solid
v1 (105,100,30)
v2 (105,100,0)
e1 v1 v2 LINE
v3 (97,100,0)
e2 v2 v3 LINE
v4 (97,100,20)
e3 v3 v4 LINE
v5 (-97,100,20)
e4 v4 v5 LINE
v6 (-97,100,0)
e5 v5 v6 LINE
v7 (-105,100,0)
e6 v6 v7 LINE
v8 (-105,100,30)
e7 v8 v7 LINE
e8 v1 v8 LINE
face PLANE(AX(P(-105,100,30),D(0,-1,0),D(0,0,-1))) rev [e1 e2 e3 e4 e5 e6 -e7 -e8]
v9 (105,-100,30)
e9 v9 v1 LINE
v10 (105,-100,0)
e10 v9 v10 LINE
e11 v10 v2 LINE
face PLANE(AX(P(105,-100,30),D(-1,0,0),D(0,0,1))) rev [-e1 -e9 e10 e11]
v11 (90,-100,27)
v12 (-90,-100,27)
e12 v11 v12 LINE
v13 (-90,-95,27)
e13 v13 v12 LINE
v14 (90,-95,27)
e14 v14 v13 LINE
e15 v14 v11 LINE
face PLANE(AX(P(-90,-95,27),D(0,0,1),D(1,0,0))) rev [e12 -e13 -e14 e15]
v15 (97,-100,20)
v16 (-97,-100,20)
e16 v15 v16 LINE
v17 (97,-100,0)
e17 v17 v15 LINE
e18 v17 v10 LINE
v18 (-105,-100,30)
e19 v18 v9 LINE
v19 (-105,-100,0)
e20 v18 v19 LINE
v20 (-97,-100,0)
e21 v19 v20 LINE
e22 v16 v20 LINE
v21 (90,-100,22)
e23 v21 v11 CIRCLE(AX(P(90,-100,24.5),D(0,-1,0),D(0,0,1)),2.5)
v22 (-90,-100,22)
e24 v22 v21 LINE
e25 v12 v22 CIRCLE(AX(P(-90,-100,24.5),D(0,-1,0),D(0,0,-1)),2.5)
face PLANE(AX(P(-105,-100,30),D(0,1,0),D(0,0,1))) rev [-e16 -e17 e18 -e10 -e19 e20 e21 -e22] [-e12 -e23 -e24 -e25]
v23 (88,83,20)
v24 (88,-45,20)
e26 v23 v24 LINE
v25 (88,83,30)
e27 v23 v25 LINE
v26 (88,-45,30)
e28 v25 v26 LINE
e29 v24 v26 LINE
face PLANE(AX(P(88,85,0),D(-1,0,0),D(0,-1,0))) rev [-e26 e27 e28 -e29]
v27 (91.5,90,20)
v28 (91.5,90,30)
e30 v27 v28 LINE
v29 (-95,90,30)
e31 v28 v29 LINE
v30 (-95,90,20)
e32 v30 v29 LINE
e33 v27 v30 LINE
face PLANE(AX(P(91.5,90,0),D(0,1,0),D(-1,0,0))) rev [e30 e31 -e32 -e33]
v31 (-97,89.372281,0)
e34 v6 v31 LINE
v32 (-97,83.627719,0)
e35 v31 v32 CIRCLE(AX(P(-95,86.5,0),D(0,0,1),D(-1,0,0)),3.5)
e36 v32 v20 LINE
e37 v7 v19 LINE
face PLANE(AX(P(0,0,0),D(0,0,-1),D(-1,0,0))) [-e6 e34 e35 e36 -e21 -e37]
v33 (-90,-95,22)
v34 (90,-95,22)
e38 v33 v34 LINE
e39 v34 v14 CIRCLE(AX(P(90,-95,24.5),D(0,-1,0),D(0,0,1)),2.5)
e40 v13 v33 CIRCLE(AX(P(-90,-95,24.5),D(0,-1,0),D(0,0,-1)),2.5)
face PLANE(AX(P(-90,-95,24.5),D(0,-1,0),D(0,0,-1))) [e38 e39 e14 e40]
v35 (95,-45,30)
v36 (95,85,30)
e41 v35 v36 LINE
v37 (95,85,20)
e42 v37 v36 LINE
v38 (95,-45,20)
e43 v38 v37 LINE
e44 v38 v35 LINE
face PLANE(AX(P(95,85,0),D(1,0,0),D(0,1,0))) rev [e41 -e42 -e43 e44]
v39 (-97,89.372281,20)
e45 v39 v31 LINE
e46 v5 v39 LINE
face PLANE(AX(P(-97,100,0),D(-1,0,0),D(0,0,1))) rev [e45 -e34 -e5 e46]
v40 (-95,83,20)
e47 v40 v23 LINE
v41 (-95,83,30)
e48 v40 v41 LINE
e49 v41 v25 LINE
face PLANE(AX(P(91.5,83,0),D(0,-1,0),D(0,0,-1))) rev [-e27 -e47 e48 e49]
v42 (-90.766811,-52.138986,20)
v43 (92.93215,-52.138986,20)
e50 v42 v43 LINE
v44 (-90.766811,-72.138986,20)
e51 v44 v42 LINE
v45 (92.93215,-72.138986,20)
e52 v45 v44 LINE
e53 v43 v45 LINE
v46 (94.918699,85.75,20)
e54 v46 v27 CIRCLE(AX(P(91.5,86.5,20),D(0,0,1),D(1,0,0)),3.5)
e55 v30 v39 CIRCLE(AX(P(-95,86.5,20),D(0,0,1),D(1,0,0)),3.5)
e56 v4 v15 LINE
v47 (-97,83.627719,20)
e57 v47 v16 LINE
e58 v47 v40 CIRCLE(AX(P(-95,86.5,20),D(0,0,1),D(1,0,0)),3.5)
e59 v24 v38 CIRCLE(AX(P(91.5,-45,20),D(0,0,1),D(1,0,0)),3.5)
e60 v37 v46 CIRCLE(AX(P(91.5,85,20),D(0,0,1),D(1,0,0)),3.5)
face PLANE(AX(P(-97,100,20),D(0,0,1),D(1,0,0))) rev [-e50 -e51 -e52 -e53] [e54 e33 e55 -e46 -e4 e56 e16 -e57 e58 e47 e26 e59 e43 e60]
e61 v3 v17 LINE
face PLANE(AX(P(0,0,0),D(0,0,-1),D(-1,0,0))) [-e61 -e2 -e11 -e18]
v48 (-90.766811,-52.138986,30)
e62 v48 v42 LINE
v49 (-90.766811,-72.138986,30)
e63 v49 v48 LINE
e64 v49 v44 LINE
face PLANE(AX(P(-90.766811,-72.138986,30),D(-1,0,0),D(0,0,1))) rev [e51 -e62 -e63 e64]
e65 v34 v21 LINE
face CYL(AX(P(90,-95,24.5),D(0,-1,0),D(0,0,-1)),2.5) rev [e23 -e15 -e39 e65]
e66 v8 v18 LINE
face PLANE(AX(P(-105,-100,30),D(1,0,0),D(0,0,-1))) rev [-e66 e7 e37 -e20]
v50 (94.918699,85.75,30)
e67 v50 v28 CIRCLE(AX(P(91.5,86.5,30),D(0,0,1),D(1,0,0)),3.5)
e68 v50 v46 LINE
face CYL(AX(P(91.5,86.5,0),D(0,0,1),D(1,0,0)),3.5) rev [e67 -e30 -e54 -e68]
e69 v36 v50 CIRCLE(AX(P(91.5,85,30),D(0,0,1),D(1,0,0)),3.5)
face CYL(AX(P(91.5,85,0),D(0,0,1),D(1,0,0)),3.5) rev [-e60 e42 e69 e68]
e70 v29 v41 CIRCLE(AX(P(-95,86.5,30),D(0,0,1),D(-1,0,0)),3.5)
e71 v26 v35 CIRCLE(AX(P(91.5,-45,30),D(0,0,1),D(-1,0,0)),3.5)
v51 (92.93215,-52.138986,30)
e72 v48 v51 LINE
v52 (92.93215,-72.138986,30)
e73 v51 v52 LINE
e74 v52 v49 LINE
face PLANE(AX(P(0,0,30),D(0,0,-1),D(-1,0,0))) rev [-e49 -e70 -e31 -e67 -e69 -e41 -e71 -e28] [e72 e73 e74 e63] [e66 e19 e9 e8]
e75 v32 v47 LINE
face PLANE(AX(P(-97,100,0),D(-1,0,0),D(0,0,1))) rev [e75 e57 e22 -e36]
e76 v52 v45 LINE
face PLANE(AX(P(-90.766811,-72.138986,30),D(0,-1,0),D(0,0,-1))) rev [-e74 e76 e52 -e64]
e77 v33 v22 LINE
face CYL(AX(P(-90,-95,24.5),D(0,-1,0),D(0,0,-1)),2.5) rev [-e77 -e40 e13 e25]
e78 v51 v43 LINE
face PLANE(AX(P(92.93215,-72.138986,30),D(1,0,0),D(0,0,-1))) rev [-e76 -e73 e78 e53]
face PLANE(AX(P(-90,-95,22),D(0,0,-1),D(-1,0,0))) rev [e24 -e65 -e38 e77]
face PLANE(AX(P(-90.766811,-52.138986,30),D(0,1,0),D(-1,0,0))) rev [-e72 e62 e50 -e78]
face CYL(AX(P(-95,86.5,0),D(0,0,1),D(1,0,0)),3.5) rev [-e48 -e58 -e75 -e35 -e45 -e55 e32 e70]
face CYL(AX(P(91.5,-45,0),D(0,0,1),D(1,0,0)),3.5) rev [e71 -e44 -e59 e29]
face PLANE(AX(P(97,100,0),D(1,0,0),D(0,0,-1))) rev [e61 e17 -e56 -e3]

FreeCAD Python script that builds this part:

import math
import FreeCAD as App
import Part
import Sketcher

doc = App.newDocument("Part")
params = doc.addObject("Spreadsheet::Sheet", "Params")
for row, (alias, value) in enumerate([
    ("sketch1_width", "210 mm"),
    ("sketch1_height", "200 mm"),
    ("pad1_length", "30 mm"),
    ("sketch2_width", "194 mm"),
    ("sketch2_height", "20 mm"),
    ("sketch3_radius", "3.5 mm"),
    ("sketch3_height", "130 mm"),
    ("sketch4_radius", "3.5 mm"),
    ("sketch4_width", "186.5 mm"),
    ("sketch5_height", "20 mm"),
    ("sketch6_radius", "2.5 mm"),
    ("sketch6_width", "180 mm"),
    ("pocket5_length", "5 mm"),
], start=1):
    params.set(f"A{row}", alias)
    params.set(f"B{row}", "=" + value)
    params.setAlias(f"B{row}", alias)

body = doc.addObject("PartDesign::Body", "Body")

# Sketch on XY plane
sketch1 = body.newObject("Sketcher::SketchObject", "Sketch")
sketch1.AttachmentSupport = (doc.getObject("XY_Plane"), [""])
sketch1.MapMode = "FlatFace"
sketch1.addGeometry(Part.LineSegment(App.Vector(-105, 100, 0), App.Vector(-105, -100, 0)), False)
sketch1.addGeometry(Part.LineSegment(App.Vector(-105, -100, 0), App.Vector(105, -100, 0)), False)
sketch1.addGeometry(Part.LineSegment(App.Vector(105, -100, 0), App.Vector(105, 100, 0)), False)
sketch1.addGeometry(Part.LineSegment(App.Vector(105, 100, 0), App.Vector(-105, 100, 0)), False)
sketch1.addConstraint(Sketcher.Constraint("Coincident", 0, 2, 1, 1))
sketch1.addConstraint(Sketcher.Constraint("Coincident", 1, 2, 2, 1))
sketch1.addConstraint(Sketcher.Constraint("Coincident", 2, 2, 3, 1))
sketch1.addConstraint(Sketcher.Constraint("Coincident", 3, 2, 0, 1))
sketch1.addConstraint(Sketcher.Constraint("Vertical", 0))
sketch1.addConstraint(Sketcher.Constraint("Horizontal", 1))
sketch1.addConstraint(Sketcher.Constraint("Vertical", 2))
sketch1.addConstraint(Sketcher.Constraint("Horizontal", 3))
sketch1.addConstraint(Sketcher.Constraint("Symmetric", 0, 2, 2, 2, -1, 1))
sketch1.addConstraint(Sketcher.Constraint("DistanceX", 1, 1, 1, 2, 210.0))
sketch1.addConstraint(Sketcher.Constraint("DistanceY", 0, 2, 0, 1, 200.0))
sketch1.setExpression("Constraints[9]", "Params.sketch1_width")
sketch1.setExpression("Constraints[10]", "Params.sketch1_height")
pad1 = body.newObject("PartDesign::Pad", "Pad")
pad1.Profile = sketch1
pad1.setExpression("Length", "Params.pad1_length")

# Sketch on XZ plane
sketch2 = body.newObject("Sketcher::SketchObject", "Sketch001")
sketch2.AttachmentSupport = (doc.getObject("XZ_Plane"), [""])
sketch2.MapMode = "FlatFace"
sketch2.AttachmentOffset = App.Placement(App.Vector(0, 0, 100), App.Rotation())
sketch2.addGeometry(Part.LineSegment(App.Vector(97, 0, 0), App.Vector(97, 20, 0)), False)
sketch2.addGeometry(Part.LineSegment(App.Vector(97, 20, 0), App.Vector(-97, 20, 0)), False)
sketch2.addGeometry(Part.LineSegment(App.Vector(-97, 20, 0), App.Vector(-97, 0, 0)), False)
sketch2.addGeometry(Part.LineSegment(App.Vector(-97, 0, 0), App.Vector(97, 0, 0)), False)
sketch2.addConstraint(Sketcher.Constraint("Coincident", 0, 2, 1, 1))
sketch2.addConstraint(Sketcher.Constraint("Coincident", 1, 2, 2, 1))
sketch2.addConstraint(Sketcher.Constraint("Coincident", 2, 2, 3, 1))
sketch2.addConstraint(Sketcher.Constraint("Coincident", 3, 2, 0, 1))
sketch2.addConstraint(Sketcher.Constraint("Vertical", 0))
sketch2.addConstraint(Sketcher.Constraint("Horizontal", 1))
sketch2.addConstraint(Sketcher.Constraint("Vertical", 2))
sketch2.addConstraint(Sketcher.Constraint("Horizontal", 3))
sketch2.addConstraint(Sketcher.Constraint("Symmetric", 2, 2, 3, 2, -1, 1))
sketch2.addConstraint(Sketcher.Constraint("DistanceX", 1, 2, 1, 1, 194.0))
sketch2.addConstraint(Sketcher.Constraint("DistanceY", 0, 1, 0, 2, 20.0))
sketch2.setExpression("Constraints[9]", "Params.sketch2_width")
sketch2.setExpression("Constraints[10]", "Params.sketch2_height")
pocket1 = body.newObject("PartDesign::Pocket", "Pocket")
pocket1.Profile = sketch2
pocket1.Type = "ThroughAll"

# Sketch on XY plane
sketch3 = body.newObject("Sketcher::SketchObject", "Sketch002")
sketch3.AttachmentSupport = (doc.getObject("XY_Plane"), [""])
sketch3.MapMode = "FlatFace"
sketch3.AttachmentOffset = App.Placement(App.Vector(0, 0, 30), App.Rotation())
sketch3.addGeometry(Part.LineSegment(App.Vector(88, 85, 0), App.Vector(88, -45, 0)), False)
sketch3.addGeometry(Part.ArcOfCircle(Part.Circle(App.Vector(91.5, -45, 0), App.Vector(0, 0, 1), 3.5), math.radians(180), math.radians(360)), False)
sketch3.addGeometry(Part.LineSegment(App.Vector(95, -45, 0), App.Vector(95, 85, 0)), False)
sketch3.addGeometry(Part.ArcOfCircle(Part.Circle(App.Vector(91.5, 85, 0), App.Vector(0, 0, 1), 3.5), math.radians(0), math.radians(180)), False)
sketch3.addConstraint(Sketcher.Constraint("Tangent", 0, 2, 1, 1))
sketch3.addConstraint(Sketcher.Constraint("Tangent", 1, 2, 2, 1))
sketch3.addConstraint(Sketcher.Constraint("Tangent", 2, 2, 3, 1))
sketch3.addConstraint(Sketcher.Constraint("Tangent", 3, 2, 0, 1))
sketch3.addConstraint(Sketcher.Constraint("Vertical", 0))
sketch3.addConstraint(Sketcher.Constraint("Vertical", 2))
sketch3.addConstraint(Sketcher.Constraint("Radius", 1, 3.5))
sketch3.addConstraint(Sketcher.Constraint("DistanceY", 0, 2, 0, 1, 130.0))
sketch3.addConstraint(Sketcher.Constraint("DistanceY", 1, 3, -1, 1, 45.0))
sketch3.addConstraint(Sketcher.Constraint("DistanceX", -1, 1, 0, 2, 88.0))
sketch3.setExpression("Constraints[6]", "Params.sketch3_radius")
sketch3.setExpression("Constraints[7]", "Params.sketch3_height")
pocket2 = body.newObject("PartDesign::Pocket", "Pocket001")
pocket2.Profile = sketch3
pocket2.Type = "ThroughAll"

# Sketch on XY plane
sketch4 = body.newObject("Sketcher::SketchObject", "Sketch003")
sketch4.AttachmentSupport = (doc.getObject("XY_Plane"), [""])
sketch4.MapMode = "FlatFace"
sketch4.AttachmentOffset = App.Placement(App.Vector(0, 0, 30), App.Rotation())
sketch4.addGeometry(Part.LineSegment(App.Vector(-95, 83, 0), App.Vector(91.5, 83, 0)), False)
sketch4.addGeometry(Part.ArcOfCircle(Part.Circle(App.Vector(91.5, 86.5, 0), App.Vector(0, 0, 1), 3.5), math.radians(-90), math.radians(90)), False)
sketch4.addGeometry(Part.LineSegment(App.Vector(91.5, 90, 0), App.Vector(-95, 90, 0)), False)
sketch4.addGeometry(Part.ArcOfCircle(Part.Circle(App.Vector(-95, 86.5, 0), App.Vector(0, 0, 1), 3.5), math.radians(90), math.radians(270)), False)
sketch4.addConstraint(Sketcher.Constraint("Tangent", 0, 2, 1, 1))
sketch4.addConstraint(Sketcher.Constraint("Tangent", 1, 2, 2, 1))
sketch4.addConstraint(Sketcher.Constraint("Tangent", 2, 2, 3, 1))
sketch4.addConstraint(Sketcher.Constraint("Tangent", 3, 2, 0, 1))
sketch4.addConstraint(Sketcher.Constraint("Horizontal", 0))
sketch4.addConstraint(Sketcher.Constraint("Horizontal", 2))
sketch4.addConstraint(Sketcher.Constraint("Radius", 1, 3.5))
sketch4.addConstraint(Sketcher.Constraint("DistanceX", 0, 1, 0, 2, 186.5))
sketch4.addConstraint(Sketcher.Constraint("DistanceX", 3, 3, -1, 1, 95.0))
sketch4.addConstraint(Sketcher.Constraint("DistanceY", -1, 1, 0, 2, 83.0))
sketch4.setExpression("Constraints[6]", "Params.sketch4_radius")
sketch4.setExpression("Constraints[7]", "Params.sketch4_width")
pocket3 = body.newObject("PartDesign::Pocket", "Pocket002")
pocket3.Profile = sketch4
pocket3.Type = "ThroughAll"

# Sketch on XY plane
sketch5 = body.newObject("Sketcher::SketchObject", "Sketch004")
sketch5.AttachmentSupport = (doc.getObject("XY_Plane"), [""])
sketch5.MapMode = "FlatFace"
sketch5.AttachmentOffset = App.Placement(App.Vector(0, 0, 20), App.Rotation())
sketch5.addGeometry(Part.LineSegment(App.Vector(93, -52, 0), App.Vector(93, -72, 0)), False)
sketch5.addGeometry(Part.LineSegment(App.Vector(93, -72, 0), App.Vector(-91, -72, 0)), False)
sketch5.addGeometry(Part.LineSegment(App.Vector(-91, -72, 0), App.Vector(-91, -52, 0)), False)
sketch5.addGeometry(Part.LineSegment(App.Vector(-91, -52, 0), App.Vector(93, -52, 0)), False)
sketch5.addConstraint(Sketcher.Constraint("Coincident", 0, 2, 1, 1))
sketch5.addConstraint(Sketcher.Constraint("Coincident", 1, 2, 2, 1))
sketch5.addConstraint(Sketcher.Constraint("Coincident", 2, 2, 3, 1))
sketch5.addConstraint(Sketcher.Constraint("Coincident", 3, 2, 0, 1))
sketch5.addConstraint(Sketcher.Constraint("Vertical", 0))
sketch5.addConstraint(Sketcher.Constraint("Horizontal", 1))
sketch5.addConstraint(Sketcher.Constraint("Vertical", 2))
sketch5.addConstraint(Sketcher.Constraint("Horizontal", 3))
sketch5.addConstraint(Sketcher.Constraint("DistanceY", 0, 2, 0, 1, 20.0))
sketch5.addConstraint(Sketcher.Constraint("DistanceX", 1, 2, 1, 1, 183.698961))
sketch5.addConstraint(Sketcher.Constraint("DistanceX", -1, 1, 0, 2, 92.93215))
sketch5.addConstraint(Sketcher.Constraint("DistanceY", 0, 2, -1, 1, 72.138986))
sketch5.setExpression("Constraints[8]", "Params.sketch5_height")
pocket4 = body.newObject("PartDesign::Pocket", "Pocket003")
pocket4.Profile = sketch5
pocket4.Type = "ThroughAll"
pocket4.Reversed = True

# Sketch on XZ plane
sketch6 = body.newObject("Sketcher::SketchObject", "Sketch005")
sketch6.AttachmentSupport = (doc.getObject("XZ_Plane"), [""])
sketch6.MapMode = "FlatFace"
sketch6.AttachmentOffset = App.Placement(App.Vector(0, 0, 100), App.Rotation())
sketch6.addGeometry(Part.LineSegment(App.Vector(90, 27, 0), App.Vector(-90, 27, 0)), False)
sketch6.addGeometry(Part.ArcOfCircle(Part.Circle(App.Vector(-90, 24.5, 0), App.Vector(0, 0, 1), 2.5), math.radians(90), math.radians(270)), False)
sketch6.addGeometry(Part.LineSegment(App.Vector(-90, 22, 0), App.Vector(90, 22, 0)), False)
sketch6.addGeometry(Part.ArcOfCircle(Part.Circle(App.Vector(90, 24.5, 0), App.Vector(0, 0, 1), 2.5), math.radians(-90), math.radians(90)), False)
sketch6.addConstraint(Sketcher.Constraint("Tangent", 0, 2, 1, 1))
sketch6.addConstraint(Sketcher.Constraint("Tangent", 1, 2, 2, 1))
sketch6.addConstraint(Sketcher.Constraint("Tangent", 2, 2, 3, 1))
sketch6.addConstraint(Sketcher.Constraint("Tangent", 3, 2, 0, 1))
sketch6.addConstraint(Sketcher.Constraint("Horizontal", 0))
sketch6.addConstraint(Sketcher.Constraint("Horizontal", 2))
sketch6.addConstraint(Sketcher.Constraint("Radius", 1, 2.5))
sketch6.addConstraint(Sketcher.Constraint("DistanceX", 0, 2, 0, 1, 180.0))
sketch6.addConstraint(Sketcher.Constraint("DistanceX", 1, 3, -1, 1, 90.0))
sketch6.addConstraint(Sketcher.Constraint("DistanceY", -1, 1, 0, 2, 27.0))
sketch6.setExpression("Constraints[6]", "Params.sketch6_radius")
sketch6.setExpression("Constraints[7]", "Params.sketch6_width")
pocket5 = body.newObject("PartDesign::Pocket", "Pocket004")
pocket5.Profile = sketch6
pocket5.setExpression("Length", "Params.pocket5_length")

doc.recompute()
